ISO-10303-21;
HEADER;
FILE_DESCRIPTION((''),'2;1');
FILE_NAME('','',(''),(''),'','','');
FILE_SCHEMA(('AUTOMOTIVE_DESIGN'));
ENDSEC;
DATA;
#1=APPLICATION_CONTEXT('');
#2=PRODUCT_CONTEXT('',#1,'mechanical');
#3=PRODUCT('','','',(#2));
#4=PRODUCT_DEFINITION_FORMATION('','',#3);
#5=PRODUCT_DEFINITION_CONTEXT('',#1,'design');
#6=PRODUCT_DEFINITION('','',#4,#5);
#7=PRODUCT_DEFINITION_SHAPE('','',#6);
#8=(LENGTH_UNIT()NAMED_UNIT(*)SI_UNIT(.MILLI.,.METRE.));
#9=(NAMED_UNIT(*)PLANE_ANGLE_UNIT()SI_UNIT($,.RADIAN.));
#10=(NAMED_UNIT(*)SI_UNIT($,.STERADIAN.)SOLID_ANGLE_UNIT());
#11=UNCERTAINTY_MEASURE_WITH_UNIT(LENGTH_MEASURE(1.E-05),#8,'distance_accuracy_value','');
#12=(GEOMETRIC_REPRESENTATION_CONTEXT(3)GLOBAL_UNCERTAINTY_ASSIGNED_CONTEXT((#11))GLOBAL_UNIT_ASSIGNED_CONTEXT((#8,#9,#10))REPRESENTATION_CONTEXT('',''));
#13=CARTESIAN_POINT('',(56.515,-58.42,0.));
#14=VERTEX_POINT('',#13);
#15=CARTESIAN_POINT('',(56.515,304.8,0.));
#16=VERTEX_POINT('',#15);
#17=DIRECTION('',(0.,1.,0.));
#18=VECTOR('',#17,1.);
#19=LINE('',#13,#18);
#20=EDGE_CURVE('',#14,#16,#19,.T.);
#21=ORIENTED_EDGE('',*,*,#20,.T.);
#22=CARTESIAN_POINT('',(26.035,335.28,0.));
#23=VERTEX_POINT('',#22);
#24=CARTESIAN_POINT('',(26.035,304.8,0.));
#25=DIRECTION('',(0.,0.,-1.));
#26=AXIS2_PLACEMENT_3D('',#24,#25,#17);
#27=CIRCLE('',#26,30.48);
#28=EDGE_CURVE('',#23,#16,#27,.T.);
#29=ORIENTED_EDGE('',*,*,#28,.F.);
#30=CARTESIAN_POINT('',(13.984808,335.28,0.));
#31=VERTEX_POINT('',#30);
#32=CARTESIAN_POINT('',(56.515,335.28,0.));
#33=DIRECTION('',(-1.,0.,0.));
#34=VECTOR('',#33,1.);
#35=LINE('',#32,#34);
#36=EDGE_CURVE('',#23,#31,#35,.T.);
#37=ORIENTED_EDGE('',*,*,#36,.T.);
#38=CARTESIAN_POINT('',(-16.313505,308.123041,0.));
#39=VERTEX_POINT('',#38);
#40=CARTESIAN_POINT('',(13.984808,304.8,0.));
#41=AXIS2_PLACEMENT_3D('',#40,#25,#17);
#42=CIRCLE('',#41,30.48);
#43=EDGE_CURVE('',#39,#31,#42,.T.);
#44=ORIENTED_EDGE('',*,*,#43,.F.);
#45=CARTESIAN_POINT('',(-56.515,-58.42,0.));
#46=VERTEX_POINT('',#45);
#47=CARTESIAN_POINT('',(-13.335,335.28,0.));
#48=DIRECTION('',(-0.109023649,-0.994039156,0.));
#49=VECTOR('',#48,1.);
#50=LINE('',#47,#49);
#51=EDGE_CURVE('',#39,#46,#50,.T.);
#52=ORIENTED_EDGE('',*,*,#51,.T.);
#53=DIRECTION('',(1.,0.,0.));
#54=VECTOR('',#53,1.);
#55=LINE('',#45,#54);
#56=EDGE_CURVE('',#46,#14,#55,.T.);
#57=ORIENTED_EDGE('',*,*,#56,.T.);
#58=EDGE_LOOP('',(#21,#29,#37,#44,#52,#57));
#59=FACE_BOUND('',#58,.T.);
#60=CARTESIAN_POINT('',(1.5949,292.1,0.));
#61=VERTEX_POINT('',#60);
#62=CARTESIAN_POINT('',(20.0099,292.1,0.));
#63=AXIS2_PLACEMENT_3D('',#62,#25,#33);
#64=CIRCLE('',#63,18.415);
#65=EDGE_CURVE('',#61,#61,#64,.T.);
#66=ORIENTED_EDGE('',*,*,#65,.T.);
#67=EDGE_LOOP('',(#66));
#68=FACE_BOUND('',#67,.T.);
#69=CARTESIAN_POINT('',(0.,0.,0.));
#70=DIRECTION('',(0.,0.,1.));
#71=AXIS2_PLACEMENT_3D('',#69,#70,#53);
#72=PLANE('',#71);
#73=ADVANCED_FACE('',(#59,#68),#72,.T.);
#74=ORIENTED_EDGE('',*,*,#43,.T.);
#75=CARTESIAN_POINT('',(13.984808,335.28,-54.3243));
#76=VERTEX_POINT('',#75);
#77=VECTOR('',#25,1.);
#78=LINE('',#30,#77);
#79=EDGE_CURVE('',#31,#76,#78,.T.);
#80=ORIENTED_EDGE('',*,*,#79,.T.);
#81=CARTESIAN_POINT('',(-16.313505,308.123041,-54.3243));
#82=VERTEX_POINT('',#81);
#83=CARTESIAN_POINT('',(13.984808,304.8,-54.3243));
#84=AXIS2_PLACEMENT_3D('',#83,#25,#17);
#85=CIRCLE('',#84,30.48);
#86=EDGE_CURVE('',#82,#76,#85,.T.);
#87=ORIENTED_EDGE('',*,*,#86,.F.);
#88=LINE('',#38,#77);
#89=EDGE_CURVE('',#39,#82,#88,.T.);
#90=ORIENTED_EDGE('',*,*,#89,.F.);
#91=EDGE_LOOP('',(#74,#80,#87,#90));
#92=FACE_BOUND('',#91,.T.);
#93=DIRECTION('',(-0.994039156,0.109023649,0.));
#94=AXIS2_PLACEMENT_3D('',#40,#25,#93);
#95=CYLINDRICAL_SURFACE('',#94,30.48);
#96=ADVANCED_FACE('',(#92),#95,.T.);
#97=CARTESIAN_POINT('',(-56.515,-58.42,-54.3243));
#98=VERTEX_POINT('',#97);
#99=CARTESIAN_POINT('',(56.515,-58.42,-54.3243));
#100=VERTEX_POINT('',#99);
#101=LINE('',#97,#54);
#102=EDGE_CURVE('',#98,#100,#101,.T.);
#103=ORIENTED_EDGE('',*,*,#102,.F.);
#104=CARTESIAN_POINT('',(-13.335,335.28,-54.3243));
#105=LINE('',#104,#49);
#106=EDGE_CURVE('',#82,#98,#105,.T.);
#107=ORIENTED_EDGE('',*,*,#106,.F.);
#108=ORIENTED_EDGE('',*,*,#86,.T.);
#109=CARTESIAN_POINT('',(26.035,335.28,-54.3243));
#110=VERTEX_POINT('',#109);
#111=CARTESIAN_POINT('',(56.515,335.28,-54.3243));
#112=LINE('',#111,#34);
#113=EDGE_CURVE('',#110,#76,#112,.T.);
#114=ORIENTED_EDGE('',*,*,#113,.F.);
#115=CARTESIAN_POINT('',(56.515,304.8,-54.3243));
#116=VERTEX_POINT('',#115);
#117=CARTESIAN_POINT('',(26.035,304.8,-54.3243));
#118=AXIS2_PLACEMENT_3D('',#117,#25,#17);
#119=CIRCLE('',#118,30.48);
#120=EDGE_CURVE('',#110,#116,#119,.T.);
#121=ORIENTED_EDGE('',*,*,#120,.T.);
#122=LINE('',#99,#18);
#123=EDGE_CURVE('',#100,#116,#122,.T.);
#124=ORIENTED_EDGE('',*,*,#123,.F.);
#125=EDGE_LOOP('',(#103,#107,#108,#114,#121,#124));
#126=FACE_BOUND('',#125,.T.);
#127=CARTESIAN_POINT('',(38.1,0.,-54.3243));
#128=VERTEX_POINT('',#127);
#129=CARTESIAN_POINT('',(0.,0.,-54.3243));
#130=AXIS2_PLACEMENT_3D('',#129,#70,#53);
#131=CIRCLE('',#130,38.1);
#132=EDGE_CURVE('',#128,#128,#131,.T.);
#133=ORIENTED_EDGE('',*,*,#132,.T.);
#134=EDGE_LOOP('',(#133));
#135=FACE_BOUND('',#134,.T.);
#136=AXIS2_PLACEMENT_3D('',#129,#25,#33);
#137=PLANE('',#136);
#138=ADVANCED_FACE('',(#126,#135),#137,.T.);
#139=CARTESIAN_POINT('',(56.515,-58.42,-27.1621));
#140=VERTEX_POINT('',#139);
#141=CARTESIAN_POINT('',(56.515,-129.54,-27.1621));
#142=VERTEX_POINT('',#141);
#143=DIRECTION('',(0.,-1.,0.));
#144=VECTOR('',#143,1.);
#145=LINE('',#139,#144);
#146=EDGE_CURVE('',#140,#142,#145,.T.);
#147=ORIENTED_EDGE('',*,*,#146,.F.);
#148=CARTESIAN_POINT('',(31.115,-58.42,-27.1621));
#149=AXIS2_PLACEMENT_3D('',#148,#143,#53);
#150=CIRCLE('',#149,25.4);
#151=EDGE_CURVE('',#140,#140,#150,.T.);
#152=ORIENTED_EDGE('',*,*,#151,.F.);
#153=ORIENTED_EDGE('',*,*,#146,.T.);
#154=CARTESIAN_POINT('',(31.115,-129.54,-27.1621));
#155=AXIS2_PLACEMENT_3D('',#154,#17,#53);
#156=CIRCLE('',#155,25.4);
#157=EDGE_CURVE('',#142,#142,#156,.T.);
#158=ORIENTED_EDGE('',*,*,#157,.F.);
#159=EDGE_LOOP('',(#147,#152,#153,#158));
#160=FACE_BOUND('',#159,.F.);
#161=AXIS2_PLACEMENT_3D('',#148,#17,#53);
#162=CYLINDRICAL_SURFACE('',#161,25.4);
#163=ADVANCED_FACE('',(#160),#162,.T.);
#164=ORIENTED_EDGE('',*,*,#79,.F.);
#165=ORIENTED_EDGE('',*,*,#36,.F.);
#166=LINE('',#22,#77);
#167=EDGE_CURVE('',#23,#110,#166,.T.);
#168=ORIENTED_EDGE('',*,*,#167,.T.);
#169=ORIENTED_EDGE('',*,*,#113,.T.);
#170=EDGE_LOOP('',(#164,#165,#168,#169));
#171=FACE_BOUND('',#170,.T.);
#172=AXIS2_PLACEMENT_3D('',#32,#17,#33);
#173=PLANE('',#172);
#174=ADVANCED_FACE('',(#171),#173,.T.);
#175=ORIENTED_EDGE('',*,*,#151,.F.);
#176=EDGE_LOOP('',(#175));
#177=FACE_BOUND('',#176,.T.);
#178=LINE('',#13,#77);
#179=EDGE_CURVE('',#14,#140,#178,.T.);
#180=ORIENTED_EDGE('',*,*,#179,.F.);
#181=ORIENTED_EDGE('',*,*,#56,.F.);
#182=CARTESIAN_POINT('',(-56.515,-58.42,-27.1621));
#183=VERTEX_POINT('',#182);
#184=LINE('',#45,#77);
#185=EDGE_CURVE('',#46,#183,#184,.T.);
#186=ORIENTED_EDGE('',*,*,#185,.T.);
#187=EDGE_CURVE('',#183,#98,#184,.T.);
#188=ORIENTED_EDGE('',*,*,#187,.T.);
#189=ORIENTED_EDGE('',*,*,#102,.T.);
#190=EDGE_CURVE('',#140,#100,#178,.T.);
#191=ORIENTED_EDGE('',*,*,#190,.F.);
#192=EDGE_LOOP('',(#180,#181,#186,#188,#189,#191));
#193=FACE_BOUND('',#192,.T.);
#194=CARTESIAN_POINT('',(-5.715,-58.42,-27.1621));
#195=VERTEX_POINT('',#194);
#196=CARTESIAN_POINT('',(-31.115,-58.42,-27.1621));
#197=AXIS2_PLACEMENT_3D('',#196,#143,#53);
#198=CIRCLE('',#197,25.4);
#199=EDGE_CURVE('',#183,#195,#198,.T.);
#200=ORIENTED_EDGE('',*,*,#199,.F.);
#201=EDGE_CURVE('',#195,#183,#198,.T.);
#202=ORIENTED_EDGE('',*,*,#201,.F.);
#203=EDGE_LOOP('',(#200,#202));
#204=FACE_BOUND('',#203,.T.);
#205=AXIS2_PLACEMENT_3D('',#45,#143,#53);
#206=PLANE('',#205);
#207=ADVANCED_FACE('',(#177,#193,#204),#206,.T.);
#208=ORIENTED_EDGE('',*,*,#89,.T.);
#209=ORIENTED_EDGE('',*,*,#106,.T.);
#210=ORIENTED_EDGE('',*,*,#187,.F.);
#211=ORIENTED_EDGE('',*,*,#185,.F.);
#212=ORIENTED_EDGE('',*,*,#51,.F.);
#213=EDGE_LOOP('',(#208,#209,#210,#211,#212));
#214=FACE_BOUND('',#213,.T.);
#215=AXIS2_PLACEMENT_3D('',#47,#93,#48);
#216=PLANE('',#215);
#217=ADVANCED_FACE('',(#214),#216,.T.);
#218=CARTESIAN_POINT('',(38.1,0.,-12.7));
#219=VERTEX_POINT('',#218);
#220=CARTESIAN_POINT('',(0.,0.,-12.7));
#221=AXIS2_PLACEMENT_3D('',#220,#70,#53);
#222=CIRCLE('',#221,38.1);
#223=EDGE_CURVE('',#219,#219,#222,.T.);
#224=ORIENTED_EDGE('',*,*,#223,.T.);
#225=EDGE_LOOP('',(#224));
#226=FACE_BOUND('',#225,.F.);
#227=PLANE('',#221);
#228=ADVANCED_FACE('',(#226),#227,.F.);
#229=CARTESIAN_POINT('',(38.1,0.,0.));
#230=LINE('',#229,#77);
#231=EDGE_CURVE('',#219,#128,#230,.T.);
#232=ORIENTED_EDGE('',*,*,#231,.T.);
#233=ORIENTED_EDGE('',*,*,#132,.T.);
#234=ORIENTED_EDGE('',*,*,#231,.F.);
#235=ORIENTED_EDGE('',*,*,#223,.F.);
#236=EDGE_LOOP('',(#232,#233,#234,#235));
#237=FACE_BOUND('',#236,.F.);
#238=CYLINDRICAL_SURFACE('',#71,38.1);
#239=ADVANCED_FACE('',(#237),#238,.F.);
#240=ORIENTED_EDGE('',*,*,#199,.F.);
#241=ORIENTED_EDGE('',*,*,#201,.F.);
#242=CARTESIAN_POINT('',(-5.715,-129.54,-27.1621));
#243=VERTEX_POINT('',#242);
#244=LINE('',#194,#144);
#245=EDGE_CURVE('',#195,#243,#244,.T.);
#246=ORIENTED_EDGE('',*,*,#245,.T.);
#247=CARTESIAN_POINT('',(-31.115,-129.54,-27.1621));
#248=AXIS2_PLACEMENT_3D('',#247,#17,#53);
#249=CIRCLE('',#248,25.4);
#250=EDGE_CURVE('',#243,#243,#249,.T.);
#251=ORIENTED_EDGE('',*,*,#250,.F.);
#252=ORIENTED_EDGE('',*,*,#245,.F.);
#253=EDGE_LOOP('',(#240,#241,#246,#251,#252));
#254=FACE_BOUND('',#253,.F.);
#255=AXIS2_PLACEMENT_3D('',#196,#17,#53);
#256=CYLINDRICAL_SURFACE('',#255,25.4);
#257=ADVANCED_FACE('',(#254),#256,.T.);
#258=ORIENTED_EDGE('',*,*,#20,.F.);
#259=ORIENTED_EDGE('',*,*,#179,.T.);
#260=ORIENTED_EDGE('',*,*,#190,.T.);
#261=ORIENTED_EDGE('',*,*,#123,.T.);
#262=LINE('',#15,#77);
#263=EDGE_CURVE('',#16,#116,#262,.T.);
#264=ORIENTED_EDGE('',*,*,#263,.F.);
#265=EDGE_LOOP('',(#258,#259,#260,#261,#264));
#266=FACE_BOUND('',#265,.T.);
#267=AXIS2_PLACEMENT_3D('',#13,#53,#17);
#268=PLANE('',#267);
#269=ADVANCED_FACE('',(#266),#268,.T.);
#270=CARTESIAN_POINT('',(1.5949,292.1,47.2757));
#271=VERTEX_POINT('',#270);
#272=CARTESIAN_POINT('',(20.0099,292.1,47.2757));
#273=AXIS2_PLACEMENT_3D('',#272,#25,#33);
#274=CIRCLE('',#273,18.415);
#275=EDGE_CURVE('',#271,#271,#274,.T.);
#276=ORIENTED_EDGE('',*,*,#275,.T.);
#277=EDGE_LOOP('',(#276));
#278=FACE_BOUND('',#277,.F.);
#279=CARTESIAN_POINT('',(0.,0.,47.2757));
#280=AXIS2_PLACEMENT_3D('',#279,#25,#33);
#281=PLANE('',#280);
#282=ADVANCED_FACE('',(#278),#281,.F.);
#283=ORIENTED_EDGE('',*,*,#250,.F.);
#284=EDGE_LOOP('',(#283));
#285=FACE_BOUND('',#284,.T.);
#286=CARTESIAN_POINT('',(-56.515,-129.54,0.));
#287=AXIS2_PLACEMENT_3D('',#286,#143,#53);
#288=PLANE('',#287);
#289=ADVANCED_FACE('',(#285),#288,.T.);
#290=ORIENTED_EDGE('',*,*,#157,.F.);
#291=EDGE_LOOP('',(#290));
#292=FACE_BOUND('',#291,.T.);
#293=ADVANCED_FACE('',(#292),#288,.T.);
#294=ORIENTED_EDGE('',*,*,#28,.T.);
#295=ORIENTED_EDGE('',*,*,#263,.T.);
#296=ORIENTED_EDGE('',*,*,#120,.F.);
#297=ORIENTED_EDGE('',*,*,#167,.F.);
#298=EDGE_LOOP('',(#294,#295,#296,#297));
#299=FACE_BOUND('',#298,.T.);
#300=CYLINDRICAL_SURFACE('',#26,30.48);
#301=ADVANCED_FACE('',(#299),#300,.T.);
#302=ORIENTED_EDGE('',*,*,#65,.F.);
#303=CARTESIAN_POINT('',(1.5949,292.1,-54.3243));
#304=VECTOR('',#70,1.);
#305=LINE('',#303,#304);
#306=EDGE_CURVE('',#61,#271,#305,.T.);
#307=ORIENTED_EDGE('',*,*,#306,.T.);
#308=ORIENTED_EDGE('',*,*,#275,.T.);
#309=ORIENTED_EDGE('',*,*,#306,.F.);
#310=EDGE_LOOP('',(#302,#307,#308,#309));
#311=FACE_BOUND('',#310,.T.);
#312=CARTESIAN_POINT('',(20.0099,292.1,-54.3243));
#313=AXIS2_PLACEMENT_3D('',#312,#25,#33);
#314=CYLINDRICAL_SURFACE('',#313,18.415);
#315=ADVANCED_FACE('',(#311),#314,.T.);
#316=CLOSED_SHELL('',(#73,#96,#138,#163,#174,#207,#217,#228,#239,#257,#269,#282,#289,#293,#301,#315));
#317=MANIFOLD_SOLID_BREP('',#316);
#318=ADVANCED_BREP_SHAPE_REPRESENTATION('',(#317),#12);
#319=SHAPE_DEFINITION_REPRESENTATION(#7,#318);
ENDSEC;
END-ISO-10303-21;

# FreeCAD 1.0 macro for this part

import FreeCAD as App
import Part
import Sketcher
from FreeCAD import Vector
Q = App.Units.Quantity


def edges_at(feature, points):
    """Names of the edges that pass closest to the given points."""
    edges = feature.Shape.Edges
    near = lambda p: min(range(len(edges)), key=lambda i: edges[i].distToShape(Part.Vertex(*p))[0])
    return sorted({f"Edge{near(p) + 1}" for p in points})

doc = App.newDocument("Part")
body = doc.addObject("PartDesign::Body", "Body")

# Sketch on XY plane
sketch1 = doc.addObject("Sketcher::SketchObject", "Sketch")
body.addObject(sketch1)
sketch1.AttachmentSupport = (doc.XY_Plane, [""])
sketch1.MapMode = "FlatFace"
sketch1.addGeometry([
    Part.LineSegment(Vector(-13.335, 335.28, 0), Vector(-56.515, -58.42, 0)),  # 0
    Part.LineSegment(Vector(-56.515, -58.42, 0), Vector(56.515, -58.42, 0)),  # 1
    Part.LineSegment(Vector(56.515, -58.42, 0), Vector(56.515, 335.28, 0)),  # 2
    Part.LineSegment(Vector(56.515, 335.28, 0), Vector(-13.335, 335.28, 0)),  # 3
    Part.Circle(Vector(0, 0, 0), Vector(0, 0, 1), 38.1),  # 4
], False)
sketch1.addConstraint([
    Sketcher.Constraint("Coincident", 0, 2, 1, 1),
    Sketcher.Constraint("Coincident", 1, 2, 2, 1),
    Sketcher.Constraint("Coincident", 2, 2, 3, 1),
    Sketcher.Constraint("Coincident", 3, 2, 0, 1),
    Sketcher.Constraint("Horizontal", 1),
    Sketcher.Constraint("Vertical", 2),
    Sketcher.Constraint("Horizontal", 3),
    Sketcher.Constraint("Coincident", 4, 3, -1, 1),
    Sketcher.Constraint("Diameter", 4, Q("3 in")),
    Sketcher.Constraint("DistanceY", 2, 1, 2, 2, Q("15.5 in")),
    Sketcher.Constraint("DistanceX", 1, 1, 1, 2, Q("4.45 in")),
    Sketcher.Constraint("DistanceX", 3, 2, 3, 1, Q("2.75 in")),
    Sketcher.Constraint("DistanceY", 0, 2, -1, 1, Q("2.3 in")),
    Sketcher.Constraint("DistanceX", 0, 2, -1, 1, Q("2.225 in")),
])
pad1 = doc.addObject("PartDesign::Pad", "Pad")
body.addObject(pad1)
pad1.Profile = sketch1
pad1.Length = 54.3243
pad1.Reversed = True
doc.recompute()

fillet = doc.addObject("PartDesign::Fillet", "Fillet")
body.addObject(fillet)
fillet.Base = (pad1, edges_at(pad1, [(56.515, 335.28, -27.162), (-13.335, 335.28, -27.162)]))
fillet.Radius = Q("1.2 in")

# Sketch on XZ plane
sketch2 = doc.addObject("Sketcher::SketchObject", "Sketch001")
body.addObject(sketch2)
sketch2.AttachmentSupport = (doc.XZ_Plane, [""])
sketch2.MapMode = "FlatFace"
sketch2.AttachmentOffset = App.Placement(Vector(0, 0, 2.3 * 25.4), App.Rotation())
sketch2.addGeometry([
    Part.Circle(Vector(-31.115, -27.1621, 0), Vector(0, 0, 1), 25.4),
    Part.Circle(Vector(31.115, -27.1621, 0), Vector(0, 0, 1), 25.4),
], False)
sketch2.addConstraint([
    Sketcher.Constraint("Equal", 0, 1),
    Sketcher.Constraint("Symmetric", 0, 3, 1, 3, -2),
    Sketcher.Constraint("Diameter", 0, Q("2 in")),
    Sketcher.Constraint("DistanceX", 0, 3, 1, 3, Q("2.45 in")),
    Sketcher.Constraint("DistanceY", 0, 3, -1, 1, 27.162),
])
pad2 = doc.addObject("PartDesign::Pad", "Pad001")
body.addObject(pad2)
pad2.Profile = sketch2
pad2.Length = Q("2.8 in")

# Sketch on XY plane
sketch3 = doc.addObject("Sketcher::SketchObject", "Sketch002")
body.addObject(sketch3)
sketch3.AttachmentSupport = (doc.XY_Plane, [""])
sketch3.MapMode = "FlatFace"
sketch3.addGeometry(Part.Circle(Vector(0, 0, 0), Vector(0, 0, 1), 42.7153), False)
sketch3.addConstraint([
    Sketcher.Constraint("Coincident", 0, 3, -1, 1),
    Sketcher.Constraint("Diameter", 0, Q("3.3634 in")),
])
pad3 = doc.addObject("PartDesign::Pad", "Pad002")
body.addObject(pad3)
pad3.Profile = sketch3
pad3.Length = Q("0.5 in")
pad3.Reversed = True

# Sketch on XY plane
sketch4 = doc.addObject("Sketcher::SketchObject", "Sketch003")
body.addObject(sketch4)
sketch4.AttachmentSupport = (doc.XY_Plane, [""])
sketch4.MapMode = "FlatFace"
sketch4.AttachmentOffset = App.Placement(Vector(0, 0, -54.3243), App.Rotation())
sketch4.addGeometry(Part.Circle(Vector(20.0099, 292.1, 0), Vector(0, 0, 1), 18.415), False)
sketch4.addConstraint([
    Sketcher.Constraint("Diameter", 0, Q("1.45 in")),
    Sketcher.Constraint("DistanceY", -1, 1, 0, 3, Q("11.5 in")),
    Sketcher.Constraint("DistanceX", -1, 1, 0, 3, Q("0.7878 in")),
])
pad4 = doc.addObject("PartDesign::Pad", "Pad003")
body.addObject(pad4)
pad4.Profile = sketch4
pad4.Length = Q("4 in")

doc.recompute()
